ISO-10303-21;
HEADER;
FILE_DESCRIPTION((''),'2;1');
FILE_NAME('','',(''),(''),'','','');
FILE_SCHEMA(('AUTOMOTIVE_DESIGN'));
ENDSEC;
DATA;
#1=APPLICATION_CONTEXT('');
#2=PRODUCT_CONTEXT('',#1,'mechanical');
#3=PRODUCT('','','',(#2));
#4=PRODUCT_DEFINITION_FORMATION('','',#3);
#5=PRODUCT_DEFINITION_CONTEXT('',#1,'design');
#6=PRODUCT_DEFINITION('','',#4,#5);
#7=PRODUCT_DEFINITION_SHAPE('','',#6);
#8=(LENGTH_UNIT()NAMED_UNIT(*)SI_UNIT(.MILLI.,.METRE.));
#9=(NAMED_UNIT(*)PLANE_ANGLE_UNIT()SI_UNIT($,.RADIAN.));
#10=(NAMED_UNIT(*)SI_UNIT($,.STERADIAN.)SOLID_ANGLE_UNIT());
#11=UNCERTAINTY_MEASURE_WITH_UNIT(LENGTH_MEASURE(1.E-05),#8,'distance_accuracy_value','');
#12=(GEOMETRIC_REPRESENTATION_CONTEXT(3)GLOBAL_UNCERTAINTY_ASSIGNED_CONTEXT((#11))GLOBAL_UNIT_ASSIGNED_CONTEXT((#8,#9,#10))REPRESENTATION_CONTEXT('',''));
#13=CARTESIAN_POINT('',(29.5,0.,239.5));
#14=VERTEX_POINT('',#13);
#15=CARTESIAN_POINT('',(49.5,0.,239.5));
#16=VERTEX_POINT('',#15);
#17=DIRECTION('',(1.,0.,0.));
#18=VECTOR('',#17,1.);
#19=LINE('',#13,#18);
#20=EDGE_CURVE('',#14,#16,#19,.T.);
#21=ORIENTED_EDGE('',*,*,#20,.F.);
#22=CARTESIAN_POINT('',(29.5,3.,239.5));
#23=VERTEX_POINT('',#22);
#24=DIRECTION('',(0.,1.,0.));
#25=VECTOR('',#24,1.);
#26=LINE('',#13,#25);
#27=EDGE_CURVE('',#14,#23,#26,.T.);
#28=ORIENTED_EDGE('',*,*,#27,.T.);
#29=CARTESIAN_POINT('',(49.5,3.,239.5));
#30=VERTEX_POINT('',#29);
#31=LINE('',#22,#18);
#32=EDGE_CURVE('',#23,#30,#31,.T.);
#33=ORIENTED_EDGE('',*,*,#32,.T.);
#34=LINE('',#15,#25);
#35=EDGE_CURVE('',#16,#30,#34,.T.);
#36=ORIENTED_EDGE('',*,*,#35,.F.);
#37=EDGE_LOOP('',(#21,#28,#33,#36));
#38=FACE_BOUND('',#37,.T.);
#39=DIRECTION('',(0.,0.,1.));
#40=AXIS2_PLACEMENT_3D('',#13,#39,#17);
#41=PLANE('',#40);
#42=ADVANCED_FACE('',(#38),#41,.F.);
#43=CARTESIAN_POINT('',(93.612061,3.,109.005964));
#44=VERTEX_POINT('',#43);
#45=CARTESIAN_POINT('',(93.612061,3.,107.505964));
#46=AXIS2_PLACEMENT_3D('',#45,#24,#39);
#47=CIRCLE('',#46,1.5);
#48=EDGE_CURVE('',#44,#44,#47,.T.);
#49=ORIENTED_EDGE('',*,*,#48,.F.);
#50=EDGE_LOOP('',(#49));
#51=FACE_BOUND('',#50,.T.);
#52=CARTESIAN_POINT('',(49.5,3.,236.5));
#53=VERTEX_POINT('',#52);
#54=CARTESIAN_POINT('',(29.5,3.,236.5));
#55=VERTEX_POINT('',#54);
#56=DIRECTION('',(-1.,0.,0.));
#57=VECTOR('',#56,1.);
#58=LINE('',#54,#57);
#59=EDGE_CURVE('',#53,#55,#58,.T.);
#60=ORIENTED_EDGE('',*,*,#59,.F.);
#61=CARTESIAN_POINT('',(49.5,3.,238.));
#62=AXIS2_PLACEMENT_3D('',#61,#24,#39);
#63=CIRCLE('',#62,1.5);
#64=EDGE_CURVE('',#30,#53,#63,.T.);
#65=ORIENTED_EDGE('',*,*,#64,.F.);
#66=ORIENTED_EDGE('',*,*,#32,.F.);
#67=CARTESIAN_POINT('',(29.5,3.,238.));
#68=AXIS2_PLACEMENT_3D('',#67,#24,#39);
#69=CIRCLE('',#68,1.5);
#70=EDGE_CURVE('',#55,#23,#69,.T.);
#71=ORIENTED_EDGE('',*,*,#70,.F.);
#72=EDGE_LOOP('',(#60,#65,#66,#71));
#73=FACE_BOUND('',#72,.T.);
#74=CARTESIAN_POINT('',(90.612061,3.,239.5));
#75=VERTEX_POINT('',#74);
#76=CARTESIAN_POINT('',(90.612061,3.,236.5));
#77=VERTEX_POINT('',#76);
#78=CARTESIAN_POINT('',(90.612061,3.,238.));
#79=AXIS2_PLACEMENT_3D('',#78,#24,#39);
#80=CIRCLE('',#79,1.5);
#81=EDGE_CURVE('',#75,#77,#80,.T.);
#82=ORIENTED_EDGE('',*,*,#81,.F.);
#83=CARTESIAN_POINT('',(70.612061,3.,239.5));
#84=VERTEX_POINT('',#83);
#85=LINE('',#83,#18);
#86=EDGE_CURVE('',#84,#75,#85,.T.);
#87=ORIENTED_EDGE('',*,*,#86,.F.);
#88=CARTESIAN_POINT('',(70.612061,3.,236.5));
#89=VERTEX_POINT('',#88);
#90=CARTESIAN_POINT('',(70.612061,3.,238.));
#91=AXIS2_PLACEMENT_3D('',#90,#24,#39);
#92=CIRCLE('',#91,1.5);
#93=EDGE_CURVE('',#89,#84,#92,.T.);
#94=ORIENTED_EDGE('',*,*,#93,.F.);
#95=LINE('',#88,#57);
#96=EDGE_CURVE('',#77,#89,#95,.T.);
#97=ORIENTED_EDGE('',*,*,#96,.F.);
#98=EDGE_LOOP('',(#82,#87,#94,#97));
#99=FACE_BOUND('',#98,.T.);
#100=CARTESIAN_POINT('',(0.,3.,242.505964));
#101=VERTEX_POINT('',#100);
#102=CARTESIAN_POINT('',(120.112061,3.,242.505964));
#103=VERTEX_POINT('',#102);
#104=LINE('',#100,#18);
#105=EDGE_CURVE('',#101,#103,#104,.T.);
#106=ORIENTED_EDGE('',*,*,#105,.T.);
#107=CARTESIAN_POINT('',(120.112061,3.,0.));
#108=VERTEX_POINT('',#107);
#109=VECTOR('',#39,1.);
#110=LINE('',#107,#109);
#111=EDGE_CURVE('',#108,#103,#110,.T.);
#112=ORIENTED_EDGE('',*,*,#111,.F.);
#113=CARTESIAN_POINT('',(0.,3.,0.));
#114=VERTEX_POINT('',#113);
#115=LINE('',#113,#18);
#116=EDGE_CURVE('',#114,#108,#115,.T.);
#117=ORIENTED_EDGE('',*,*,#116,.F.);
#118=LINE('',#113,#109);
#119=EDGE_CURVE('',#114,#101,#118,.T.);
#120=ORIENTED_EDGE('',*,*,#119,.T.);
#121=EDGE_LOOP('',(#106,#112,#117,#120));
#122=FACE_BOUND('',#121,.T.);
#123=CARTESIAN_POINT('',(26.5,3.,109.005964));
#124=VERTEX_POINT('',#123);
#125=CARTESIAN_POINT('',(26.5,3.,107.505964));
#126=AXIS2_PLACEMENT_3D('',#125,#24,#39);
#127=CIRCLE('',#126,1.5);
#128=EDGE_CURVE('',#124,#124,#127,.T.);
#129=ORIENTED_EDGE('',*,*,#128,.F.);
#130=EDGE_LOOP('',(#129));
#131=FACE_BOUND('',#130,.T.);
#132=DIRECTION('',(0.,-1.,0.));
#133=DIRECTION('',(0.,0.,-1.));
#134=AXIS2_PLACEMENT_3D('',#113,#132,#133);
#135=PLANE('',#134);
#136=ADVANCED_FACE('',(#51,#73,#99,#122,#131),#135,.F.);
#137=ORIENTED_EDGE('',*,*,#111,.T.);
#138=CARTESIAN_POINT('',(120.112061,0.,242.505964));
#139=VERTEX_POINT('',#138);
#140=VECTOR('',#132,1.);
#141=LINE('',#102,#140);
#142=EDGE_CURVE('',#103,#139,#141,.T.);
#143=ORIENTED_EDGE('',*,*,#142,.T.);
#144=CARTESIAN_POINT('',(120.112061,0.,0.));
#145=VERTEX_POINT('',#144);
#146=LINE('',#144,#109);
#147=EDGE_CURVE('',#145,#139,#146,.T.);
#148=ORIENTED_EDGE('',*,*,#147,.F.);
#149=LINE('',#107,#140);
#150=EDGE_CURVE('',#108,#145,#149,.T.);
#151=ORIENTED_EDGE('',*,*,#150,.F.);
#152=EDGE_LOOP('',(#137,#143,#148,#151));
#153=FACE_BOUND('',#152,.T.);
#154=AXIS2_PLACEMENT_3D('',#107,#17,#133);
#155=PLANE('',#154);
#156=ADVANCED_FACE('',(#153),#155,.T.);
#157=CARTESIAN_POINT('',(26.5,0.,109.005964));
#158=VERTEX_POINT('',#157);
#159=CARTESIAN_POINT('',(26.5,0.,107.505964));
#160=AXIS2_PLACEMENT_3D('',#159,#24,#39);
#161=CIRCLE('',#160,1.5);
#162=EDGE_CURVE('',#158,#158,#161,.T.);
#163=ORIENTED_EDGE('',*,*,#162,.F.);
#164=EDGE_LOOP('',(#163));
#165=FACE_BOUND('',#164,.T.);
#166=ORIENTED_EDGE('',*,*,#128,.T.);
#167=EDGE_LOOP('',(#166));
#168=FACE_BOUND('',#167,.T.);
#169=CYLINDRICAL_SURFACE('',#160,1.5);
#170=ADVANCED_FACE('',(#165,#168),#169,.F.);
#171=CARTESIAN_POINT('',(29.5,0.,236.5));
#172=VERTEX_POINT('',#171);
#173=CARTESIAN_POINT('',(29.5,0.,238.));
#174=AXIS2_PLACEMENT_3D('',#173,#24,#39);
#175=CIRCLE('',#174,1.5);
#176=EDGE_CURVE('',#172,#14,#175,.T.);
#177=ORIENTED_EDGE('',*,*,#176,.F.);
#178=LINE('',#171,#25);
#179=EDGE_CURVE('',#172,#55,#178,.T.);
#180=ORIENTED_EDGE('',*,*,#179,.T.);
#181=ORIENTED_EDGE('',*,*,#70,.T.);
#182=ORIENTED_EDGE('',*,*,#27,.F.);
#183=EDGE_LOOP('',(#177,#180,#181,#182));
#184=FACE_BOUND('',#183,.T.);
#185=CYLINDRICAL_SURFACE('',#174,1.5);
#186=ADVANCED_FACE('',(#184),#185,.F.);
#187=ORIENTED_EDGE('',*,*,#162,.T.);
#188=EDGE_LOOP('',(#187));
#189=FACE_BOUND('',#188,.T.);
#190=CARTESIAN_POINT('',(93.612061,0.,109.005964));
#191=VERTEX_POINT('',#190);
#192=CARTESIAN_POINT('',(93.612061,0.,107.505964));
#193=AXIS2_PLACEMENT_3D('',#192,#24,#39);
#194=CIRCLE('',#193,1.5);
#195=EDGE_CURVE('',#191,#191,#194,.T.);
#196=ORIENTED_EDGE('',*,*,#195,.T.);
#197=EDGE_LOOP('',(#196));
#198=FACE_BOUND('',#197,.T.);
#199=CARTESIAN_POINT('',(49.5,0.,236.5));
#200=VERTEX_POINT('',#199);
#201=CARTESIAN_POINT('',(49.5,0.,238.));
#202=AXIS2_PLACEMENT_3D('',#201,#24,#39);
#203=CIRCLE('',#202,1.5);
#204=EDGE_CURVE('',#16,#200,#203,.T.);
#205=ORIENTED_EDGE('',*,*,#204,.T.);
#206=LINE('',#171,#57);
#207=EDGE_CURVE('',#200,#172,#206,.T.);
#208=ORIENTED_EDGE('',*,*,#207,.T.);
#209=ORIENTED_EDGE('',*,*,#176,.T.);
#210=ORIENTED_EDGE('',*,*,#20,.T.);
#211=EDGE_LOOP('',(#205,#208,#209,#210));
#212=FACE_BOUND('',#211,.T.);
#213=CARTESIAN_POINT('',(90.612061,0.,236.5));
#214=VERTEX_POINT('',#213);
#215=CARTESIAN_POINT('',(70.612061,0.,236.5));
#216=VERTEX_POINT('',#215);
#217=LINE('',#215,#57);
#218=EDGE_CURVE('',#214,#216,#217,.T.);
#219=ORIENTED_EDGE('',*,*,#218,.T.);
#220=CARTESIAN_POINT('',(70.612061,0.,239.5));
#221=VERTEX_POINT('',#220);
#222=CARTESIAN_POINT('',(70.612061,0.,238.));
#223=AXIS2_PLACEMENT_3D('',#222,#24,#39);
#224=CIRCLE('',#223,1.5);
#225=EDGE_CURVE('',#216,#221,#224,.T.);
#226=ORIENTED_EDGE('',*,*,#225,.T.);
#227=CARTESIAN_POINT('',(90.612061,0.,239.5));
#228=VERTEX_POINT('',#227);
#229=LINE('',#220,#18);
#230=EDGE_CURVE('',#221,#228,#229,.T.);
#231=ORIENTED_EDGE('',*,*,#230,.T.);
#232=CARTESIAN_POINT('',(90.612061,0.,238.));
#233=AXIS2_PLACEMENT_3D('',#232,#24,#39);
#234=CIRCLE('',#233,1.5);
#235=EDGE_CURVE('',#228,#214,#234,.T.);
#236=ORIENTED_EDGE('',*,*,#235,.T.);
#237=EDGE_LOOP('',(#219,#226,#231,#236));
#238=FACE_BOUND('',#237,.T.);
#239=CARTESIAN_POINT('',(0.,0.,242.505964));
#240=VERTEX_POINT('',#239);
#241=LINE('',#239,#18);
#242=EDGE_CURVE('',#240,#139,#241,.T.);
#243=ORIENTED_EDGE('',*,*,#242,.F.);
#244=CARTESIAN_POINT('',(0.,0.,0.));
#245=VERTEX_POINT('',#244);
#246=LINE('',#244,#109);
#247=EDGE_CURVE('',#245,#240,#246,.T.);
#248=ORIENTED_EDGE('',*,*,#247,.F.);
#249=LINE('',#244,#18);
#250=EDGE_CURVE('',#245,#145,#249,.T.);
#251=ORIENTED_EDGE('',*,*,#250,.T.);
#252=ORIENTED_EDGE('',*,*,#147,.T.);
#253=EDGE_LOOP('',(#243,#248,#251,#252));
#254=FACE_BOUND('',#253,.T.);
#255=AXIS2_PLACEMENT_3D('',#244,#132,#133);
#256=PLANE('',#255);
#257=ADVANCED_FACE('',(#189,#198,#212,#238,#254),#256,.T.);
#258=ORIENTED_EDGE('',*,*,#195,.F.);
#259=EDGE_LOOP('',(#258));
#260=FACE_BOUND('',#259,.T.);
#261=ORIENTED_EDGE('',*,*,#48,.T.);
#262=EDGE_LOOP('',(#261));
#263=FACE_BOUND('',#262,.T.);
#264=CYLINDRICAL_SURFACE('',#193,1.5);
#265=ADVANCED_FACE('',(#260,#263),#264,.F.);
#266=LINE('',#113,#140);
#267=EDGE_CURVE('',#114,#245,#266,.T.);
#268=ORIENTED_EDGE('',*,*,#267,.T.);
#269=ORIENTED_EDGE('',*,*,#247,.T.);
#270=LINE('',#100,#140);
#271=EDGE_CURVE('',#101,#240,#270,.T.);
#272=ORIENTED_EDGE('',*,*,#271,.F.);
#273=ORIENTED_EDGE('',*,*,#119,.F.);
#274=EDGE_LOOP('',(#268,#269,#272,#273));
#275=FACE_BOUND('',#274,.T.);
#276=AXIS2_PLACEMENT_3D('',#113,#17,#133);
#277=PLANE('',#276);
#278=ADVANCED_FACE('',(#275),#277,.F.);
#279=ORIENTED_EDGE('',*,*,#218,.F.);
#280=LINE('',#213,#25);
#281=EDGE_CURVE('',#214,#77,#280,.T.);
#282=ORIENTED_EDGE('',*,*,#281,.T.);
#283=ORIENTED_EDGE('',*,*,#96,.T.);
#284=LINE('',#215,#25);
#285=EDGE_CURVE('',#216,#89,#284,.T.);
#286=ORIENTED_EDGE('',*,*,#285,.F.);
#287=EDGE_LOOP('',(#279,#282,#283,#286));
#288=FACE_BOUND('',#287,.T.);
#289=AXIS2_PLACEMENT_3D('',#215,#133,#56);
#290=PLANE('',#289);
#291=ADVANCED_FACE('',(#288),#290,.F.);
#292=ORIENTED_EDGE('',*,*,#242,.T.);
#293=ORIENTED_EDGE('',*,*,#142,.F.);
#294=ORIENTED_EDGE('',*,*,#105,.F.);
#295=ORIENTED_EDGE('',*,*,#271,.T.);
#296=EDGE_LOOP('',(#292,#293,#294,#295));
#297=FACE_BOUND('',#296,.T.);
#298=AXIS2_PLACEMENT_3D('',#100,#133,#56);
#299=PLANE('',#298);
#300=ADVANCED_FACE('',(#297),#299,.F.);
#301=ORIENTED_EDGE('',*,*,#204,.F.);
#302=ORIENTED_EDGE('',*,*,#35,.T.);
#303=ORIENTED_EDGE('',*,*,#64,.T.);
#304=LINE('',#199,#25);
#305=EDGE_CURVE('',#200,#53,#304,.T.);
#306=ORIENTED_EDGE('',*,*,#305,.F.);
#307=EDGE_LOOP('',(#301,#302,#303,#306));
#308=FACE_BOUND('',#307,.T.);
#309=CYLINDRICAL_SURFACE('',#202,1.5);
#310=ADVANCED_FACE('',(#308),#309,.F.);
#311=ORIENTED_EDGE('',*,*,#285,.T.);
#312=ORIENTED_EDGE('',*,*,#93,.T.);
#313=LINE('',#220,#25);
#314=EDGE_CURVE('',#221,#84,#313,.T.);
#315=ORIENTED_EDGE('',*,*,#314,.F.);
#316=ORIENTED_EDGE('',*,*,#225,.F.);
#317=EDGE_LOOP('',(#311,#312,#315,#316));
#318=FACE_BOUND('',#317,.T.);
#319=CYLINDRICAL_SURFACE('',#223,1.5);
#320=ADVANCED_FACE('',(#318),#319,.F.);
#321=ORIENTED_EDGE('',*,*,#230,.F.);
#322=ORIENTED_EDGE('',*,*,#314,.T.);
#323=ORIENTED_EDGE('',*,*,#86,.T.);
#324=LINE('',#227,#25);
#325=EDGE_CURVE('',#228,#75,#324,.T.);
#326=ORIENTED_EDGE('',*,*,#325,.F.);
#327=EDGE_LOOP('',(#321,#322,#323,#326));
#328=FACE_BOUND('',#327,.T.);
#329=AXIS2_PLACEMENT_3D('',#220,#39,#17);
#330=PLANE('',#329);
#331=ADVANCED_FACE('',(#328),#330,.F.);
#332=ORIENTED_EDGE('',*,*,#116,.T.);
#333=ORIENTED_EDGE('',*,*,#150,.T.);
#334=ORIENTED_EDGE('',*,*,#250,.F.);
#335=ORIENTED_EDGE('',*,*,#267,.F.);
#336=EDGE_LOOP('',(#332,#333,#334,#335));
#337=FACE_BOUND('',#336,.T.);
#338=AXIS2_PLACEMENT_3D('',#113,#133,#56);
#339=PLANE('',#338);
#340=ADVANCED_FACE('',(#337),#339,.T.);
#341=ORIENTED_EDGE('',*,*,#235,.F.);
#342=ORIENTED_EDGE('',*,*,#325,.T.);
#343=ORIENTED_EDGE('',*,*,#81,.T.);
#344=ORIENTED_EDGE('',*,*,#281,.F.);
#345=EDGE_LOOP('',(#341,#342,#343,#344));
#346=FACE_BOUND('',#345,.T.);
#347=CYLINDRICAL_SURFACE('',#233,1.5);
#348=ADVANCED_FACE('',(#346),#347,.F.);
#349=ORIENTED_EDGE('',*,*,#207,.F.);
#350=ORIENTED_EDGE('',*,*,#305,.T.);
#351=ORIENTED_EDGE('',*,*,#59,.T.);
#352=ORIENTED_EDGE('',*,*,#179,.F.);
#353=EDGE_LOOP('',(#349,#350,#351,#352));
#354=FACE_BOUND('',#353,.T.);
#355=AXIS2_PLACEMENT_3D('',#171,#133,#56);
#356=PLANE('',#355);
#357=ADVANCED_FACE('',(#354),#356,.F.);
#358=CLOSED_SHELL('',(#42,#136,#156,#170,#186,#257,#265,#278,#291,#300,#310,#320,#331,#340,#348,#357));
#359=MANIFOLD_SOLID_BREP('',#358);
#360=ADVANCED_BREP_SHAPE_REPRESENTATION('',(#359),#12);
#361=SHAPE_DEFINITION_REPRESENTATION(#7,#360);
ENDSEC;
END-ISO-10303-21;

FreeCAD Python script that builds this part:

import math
import FreeCAD as App
import Part
import Sketcher
from FreeCAD import Vector

doc = App.newDocument("Part")
body = doc.addObject("PartDesign::Body", "Body")

sketch1 = body.newObject("Sketcher::SketchObject", "Sketch")
sketch1.AttachmentSupport = (doc.getObject("XZ_Plane"), [""])
sketch1.MapMode = "FlatFace"
sketch1.addGeometry([
    Part.LineSegment(Vector(0, 0, 0), Vector(0, 242.505964, 0)),
    Part.LineSegment(Vector(0, 242.505964, 0), Vector(120.112061, 242.505964, 0)),
    Part.LineSegment(Vector(120.112061, 242.505964, 0), Vector(120.112061, 0, 0)),
    Part.LineSegment(Vector(120.112061, 0, 0), Vector(0, 0, 0)),
], False)
sketch1.addConstraint([
    Sketcher.Constraint("Coincident", 0, 2, 1, 1),
    Sketcher.Constraint("Coincident", 1, 2, 2, 1),
    Sketcher.Constraint("Coincident", 2, 2, 3, 1),
    Sketcher.Constraint("Coincident", 3, 2, 0, 1),
    Sketcher.Constraint("Vertical", 0),
    Sketcher.Constraint("Horizontal", 1),
    Sketcher.Constraint("Vertical", 2),
    Sketcher.Constraint("Horizontal", 3),
    Sketcher.Constraint("Coincident", 3, 2, -1, 1),
    Sketcher.Constraint("DistanceX", 1, 1, 1, 2, 120.112061),
    Sketcher.Constraint("DistanceY", 0, 1, 0, 2, 242.505964),
])
pad1 = body.newObject("PartDesign::Pad", "Pad")
pad1.Profile = sketch1
pad1.Length = 3
pad1.Reversed = True

sketch2 = body.newObject("Sketcher::SketchObject", "Sketch001")
sketch2.AttachmentSupport = (doc.getObject("XZ_Plane"), [""])
sketch2.MapMode = "FlatFace"
sketch2.AttachmentOffset = App.Placement(Vector(0, 0, -3), App.Rotation())
sketch2.addGeometry([
    Part.Circle(Vector(26.5, 107.505964, 0), Vector(0, 0, 1), 1.5),
    Part.Circle(Vector(93.612061, 107.505964, 0), Vector(0, 0, 1), 1.5),
    Part.LineSegment(Vector(49.5, 236.5, 0), Vector(29.5, 236.5, 0)),
    Part.ArcOfCircle(Part.Circle(Vector(29.5, 238, 0), Vector(0, 0, 1), 1.5), math.radians(90), math.radians(270)),
    Part.LineSegment(Vector(29.5, 239.5, 0), Vector(49.5, 239.5, 0)),
    Part.ArcOfCircle(Part.Circle(Vector(49.5, 238, 0), Vector(0, 0, 1), 1.5), math.radians(-90), math.radians(90)),
    Part.LineSegment(Vector(90.612061, 236.5, 0), Vector(70.612061, 236.5, 0)),
    Part.ArcOfCircle(Part.Circle(Vector(70.612061, 238, 0), Vector(0, 0, 1), 1.5), math.radians(90), math.radians(270)),
    Part.LineSegment(Vector(70.612061, 239.5, 0), Vector(90.612061, 239.5, 0)),
    Part.ArcOfCircle(Part.Circle(Vector(90.612061, 238, 0), Vector(0, 0, 1), 1.5), math.radians(-90), math.radians(90)),
], False)
sketch2.addConstraint([
    Sketcher.Constraint("Tangent", 2, 2, 3, 2),
    Sketcher.Constraint("Tangent", 3, 1, 4, 1),
    Sketcher.Constraint("Tangent", 4, 2, 5, 2),
    Sketcher.Constraint("Tangent", 5, 1, 2, 1),
    Sketcher.Constraint("Tangent", 6, 2, 7, 2),
    Sketcher.Constraint("Tangent", 7, 1, 8, 1),
    Sketcher.Constraint("Tangent", 8, 2, 9, 2),
    Sketcher.Constraint("Tangent", 9, 1, 6, 1),
    Sketcher.Constraint("Horizontal", 2),
    Sketcher.Constraint("Horizontal", 4),
    Sketcher.Constraint("Horizontal", 6),
    Sketcher.Constraint("Horizontal", 8),
    Sketcher.Constraint("Equal", 0, 1),
    Sketcher.Constraint("Equal", 1, 3),
    Sketcher.Constraint("Equal", 5, 7),
    Sketcher.Constraint("Horizontal", 0, 3, 1, 3),
    Sketcher.Constraint("Horizontal", 5, 3, 7, 3),
    Sketcher.Constraint("Equal", 4, 6),
    Sketcher.Constraint("Diameter", 0, 3.0),
    Sketcher.Constraint("DistanceX", 2, 2, 2, 1, 20.0),
    Sketcher.Constraint("DistanceY", -1, 1, 3, 3, 238.0),
    Sketcher.Constraint("DistanceX", 0, 3, 3, 3, 3.0),
    Sketcher.Constraint("DistanceX", 7, 3, 1, 3, 23.0),
    Sketcher.Constraint("DistanceX", -1, 1, 0, 3, 26.5),
    Sketcher.Constraint("DistanceX", -1, 1, 1, 3, 93.612061),
    Sketcher.Constraint("DistanceY", -1, 1, 0, 3, 107.505964),
])
pocket1 = body.newObject("PartDesign::Pocket", "Pocket")
pocket1.Profile = sketch2
pocket1.Length = 3
pocket1.Reversed = True

doc.recompute()
